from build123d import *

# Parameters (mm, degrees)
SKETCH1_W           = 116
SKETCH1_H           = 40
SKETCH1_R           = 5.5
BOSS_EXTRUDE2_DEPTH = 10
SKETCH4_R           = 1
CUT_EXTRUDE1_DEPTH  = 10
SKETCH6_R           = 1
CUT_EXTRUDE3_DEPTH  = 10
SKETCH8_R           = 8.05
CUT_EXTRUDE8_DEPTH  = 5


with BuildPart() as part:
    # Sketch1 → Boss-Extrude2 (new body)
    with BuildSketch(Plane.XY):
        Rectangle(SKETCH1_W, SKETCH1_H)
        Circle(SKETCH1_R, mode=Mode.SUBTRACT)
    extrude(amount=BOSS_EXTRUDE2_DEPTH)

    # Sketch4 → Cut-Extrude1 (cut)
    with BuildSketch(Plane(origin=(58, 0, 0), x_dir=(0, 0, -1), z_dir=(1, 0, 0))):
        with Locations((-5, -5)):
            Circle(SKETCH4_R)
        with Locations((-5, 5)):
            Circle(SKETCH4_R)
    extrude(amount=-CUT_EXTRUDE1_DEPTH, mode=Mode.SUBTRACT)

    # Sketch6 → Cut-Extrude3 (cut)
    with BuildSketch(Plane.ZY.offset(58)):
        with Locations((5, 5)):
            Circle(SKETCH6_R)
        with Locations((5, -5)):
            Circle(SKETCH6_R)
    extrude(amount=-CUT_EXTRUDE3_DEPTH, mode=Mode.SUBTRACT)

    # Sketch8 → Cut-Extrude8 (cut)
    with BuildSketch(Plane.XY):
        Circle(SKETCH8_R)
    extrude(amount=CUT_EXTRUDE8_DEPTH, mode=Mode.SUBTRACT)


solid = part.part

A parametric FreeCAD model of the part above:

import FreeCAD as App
import Part
import Sketcher


def add_polygon(sketch, points):
    """Adds a closed chain of lines whose ends are joined by coincident constraints."""
    first, n = sketch.GeometryCount, len(points)
    for a, b in zip(points, points[1:] + points[:1]):
        sketch.addGeometry(Part.LineSegment(App.Vector(*a, 0), App.Vector(*b, 0)), False)
    for i in range(n):
        sketch.addConstraint(Sketcher.Constraint("Coincident", first + i, 2, first + (i + 1) % n, 1))

doc = App.newDocument("Part")
body = doc.addObject("PartDesign::Body", "Body")

sketch1 = body.newObject("Sketcher::SketchObject", "Sketch")
sketch1.AttachmentSupport = (doc.getObject("XY_Plane"), [""])
sketch1.MapMode = "FlatFace"
add_polygon(sketch1, [(-58, 20), (-58, -20), (58, -20), (58, 20)])
sketch1.addGeometry(Part.Circle(App.Vector(0, 0, 0), App.Vector(0, 0, 1), 6), False)
sketch1.addConstraint(Sketcher.Constraint("Vertical", 0))
sketch1.addConstraint(Sketcher.Constraint("Horizontal", 1))
sketch1.addConstraint(Sketcher.Constraint("Vertical", 2))
sketch1.addConstraint(Sketcher.Constraint("Horizontal", 3))
sketch1.addConstraint(Sketcher.Constraint("Coincident", 4, 3, -1, 1))
sketch1.addConstraint(Sketcher.Constraint("Symmetric", 0, 2, 2, 2, -1, 1))
sketch1.addConstraint(Sketcher.Constraint("Diameter", 4, 11.0))
sketch1.addConstraint(Sketcher.Constraint("DistanceX", 1, 1, 1, 2, 116.0))
sketch1.addConstraint(Sketcher.Constraint("DistanceY", 0, 2, 0, 1, 40.0))
pad1 = body.newObject("PartDesign::Pad", "Pad")
pad1.Profile = sketch1
pad1.Length = 10

sketch2 = body.newObject("Sketcher::SketchObject", "Sketch001")
sketch2.AttachmentSupport = (doc.getObject("YZ_Plane"), [""])
sketch2.MapMode = "FlatFace"
sketch2.AttachmentOffset = App.Placement(App.Vector(0, 0, 58), App.Rotation())
sketch2.addGeometry(Part.Circle(App.Vector(-5, 5, 0), App.Vector(0, 0, 1), 1), False)
sketch2.addGeometry(Part.Circle(App.Vector(5, 5, 0), App.Vector(0, 0, 1), 1), False)
sketch2.addConstraint(Sketcher.Constraint("Equal", 0, 1))
sketch2.addConstraint(Sketcher.Constraint("Symmetric", 0, 3, 1, 3, -2))
sketch2.addConstraint(Sketcher.Constraint("Diameter", 0, 2.0))
sketch2.addConstraint(Sketcher.Constraint("DistanceX", 0, 3, -1, 1, 5.0))
sketch2.addConstraint(Sketcher.Constraint("DistanceY", -1, 1, 0, 3, 5.0))
pocket1 = body.newObject("PartDesign::Pocket", "Pocket")
pocket1.Profile = sketch2
pocket1.Length = 10

sketch3 = body.newObject("Sketcher::SketchObject", "Sketch002")
sketch3.AttachmentSupport = (doc.getObject("YZ_Plane"), [""])
sketch3.MapMode = "FlatFace"
sketch3.AttachmentOffset = App.Placement(App.Vector(0, 0, -58), App.Rotation())
sketch3.addGeometry(Part.Circle(App.Vector(5, 5, 0), App.Vector(0, 0, 1), 1), False)
sketch3.addGeometry(Part.Circle(App.Vector(-5, 5, 0), App.Vector(0, 0, 1), 1), False)
sketch3.addConstraint(Sketcher.Constraint("Equal", 0, 1))
sketch3.addConstraint(Sketcher.Constraint("Symmetric", 0, 3, 1, 3, -2))
sketch3.addConstraint(Sketcher.Constraint("Diameter", 0, 2.0))
sketch3.addConstraint(Sketcher.Constraint("DistanceX", -1, 1, 0, 3, 5.0))
sketch3.addConstraint(Sketcher.Constraint("DistanceY", -1, 1, 0, 3, 5.0))
pocket2 = body.newObject("PartDesign::Pocket", "Pocket001")
pocket2.Profile = sketch3
pocket2.Length = 10
pocket2.Reversed = True

sketch4 = body.newObject("Sketcher::SketchObject", "Sketch003")
sketch4.AttachmentSupport = (doc.getObject("XY_Plane"), [""])
sketch4.MapMode = "FlatFace"
sketch4.addGeometry(Part.Circle(App.Vector(0, 0, 0), App.Vector(0, 0, 1), 8), False)
sketch4.addConstraint(Sketcher.Constraint("Coincident", 0, 3, -1, 1))
sketch4.addConstraint(Sketcher.Constraint("Diameter", 0, 16.1))
pocket3 = body.newObject("PartDesign::Pocket", "Pocket002")
pocket3.Profile = sketch4
pocket3.Length = 5
pocket3.Reversed = True

doc.recompute()
